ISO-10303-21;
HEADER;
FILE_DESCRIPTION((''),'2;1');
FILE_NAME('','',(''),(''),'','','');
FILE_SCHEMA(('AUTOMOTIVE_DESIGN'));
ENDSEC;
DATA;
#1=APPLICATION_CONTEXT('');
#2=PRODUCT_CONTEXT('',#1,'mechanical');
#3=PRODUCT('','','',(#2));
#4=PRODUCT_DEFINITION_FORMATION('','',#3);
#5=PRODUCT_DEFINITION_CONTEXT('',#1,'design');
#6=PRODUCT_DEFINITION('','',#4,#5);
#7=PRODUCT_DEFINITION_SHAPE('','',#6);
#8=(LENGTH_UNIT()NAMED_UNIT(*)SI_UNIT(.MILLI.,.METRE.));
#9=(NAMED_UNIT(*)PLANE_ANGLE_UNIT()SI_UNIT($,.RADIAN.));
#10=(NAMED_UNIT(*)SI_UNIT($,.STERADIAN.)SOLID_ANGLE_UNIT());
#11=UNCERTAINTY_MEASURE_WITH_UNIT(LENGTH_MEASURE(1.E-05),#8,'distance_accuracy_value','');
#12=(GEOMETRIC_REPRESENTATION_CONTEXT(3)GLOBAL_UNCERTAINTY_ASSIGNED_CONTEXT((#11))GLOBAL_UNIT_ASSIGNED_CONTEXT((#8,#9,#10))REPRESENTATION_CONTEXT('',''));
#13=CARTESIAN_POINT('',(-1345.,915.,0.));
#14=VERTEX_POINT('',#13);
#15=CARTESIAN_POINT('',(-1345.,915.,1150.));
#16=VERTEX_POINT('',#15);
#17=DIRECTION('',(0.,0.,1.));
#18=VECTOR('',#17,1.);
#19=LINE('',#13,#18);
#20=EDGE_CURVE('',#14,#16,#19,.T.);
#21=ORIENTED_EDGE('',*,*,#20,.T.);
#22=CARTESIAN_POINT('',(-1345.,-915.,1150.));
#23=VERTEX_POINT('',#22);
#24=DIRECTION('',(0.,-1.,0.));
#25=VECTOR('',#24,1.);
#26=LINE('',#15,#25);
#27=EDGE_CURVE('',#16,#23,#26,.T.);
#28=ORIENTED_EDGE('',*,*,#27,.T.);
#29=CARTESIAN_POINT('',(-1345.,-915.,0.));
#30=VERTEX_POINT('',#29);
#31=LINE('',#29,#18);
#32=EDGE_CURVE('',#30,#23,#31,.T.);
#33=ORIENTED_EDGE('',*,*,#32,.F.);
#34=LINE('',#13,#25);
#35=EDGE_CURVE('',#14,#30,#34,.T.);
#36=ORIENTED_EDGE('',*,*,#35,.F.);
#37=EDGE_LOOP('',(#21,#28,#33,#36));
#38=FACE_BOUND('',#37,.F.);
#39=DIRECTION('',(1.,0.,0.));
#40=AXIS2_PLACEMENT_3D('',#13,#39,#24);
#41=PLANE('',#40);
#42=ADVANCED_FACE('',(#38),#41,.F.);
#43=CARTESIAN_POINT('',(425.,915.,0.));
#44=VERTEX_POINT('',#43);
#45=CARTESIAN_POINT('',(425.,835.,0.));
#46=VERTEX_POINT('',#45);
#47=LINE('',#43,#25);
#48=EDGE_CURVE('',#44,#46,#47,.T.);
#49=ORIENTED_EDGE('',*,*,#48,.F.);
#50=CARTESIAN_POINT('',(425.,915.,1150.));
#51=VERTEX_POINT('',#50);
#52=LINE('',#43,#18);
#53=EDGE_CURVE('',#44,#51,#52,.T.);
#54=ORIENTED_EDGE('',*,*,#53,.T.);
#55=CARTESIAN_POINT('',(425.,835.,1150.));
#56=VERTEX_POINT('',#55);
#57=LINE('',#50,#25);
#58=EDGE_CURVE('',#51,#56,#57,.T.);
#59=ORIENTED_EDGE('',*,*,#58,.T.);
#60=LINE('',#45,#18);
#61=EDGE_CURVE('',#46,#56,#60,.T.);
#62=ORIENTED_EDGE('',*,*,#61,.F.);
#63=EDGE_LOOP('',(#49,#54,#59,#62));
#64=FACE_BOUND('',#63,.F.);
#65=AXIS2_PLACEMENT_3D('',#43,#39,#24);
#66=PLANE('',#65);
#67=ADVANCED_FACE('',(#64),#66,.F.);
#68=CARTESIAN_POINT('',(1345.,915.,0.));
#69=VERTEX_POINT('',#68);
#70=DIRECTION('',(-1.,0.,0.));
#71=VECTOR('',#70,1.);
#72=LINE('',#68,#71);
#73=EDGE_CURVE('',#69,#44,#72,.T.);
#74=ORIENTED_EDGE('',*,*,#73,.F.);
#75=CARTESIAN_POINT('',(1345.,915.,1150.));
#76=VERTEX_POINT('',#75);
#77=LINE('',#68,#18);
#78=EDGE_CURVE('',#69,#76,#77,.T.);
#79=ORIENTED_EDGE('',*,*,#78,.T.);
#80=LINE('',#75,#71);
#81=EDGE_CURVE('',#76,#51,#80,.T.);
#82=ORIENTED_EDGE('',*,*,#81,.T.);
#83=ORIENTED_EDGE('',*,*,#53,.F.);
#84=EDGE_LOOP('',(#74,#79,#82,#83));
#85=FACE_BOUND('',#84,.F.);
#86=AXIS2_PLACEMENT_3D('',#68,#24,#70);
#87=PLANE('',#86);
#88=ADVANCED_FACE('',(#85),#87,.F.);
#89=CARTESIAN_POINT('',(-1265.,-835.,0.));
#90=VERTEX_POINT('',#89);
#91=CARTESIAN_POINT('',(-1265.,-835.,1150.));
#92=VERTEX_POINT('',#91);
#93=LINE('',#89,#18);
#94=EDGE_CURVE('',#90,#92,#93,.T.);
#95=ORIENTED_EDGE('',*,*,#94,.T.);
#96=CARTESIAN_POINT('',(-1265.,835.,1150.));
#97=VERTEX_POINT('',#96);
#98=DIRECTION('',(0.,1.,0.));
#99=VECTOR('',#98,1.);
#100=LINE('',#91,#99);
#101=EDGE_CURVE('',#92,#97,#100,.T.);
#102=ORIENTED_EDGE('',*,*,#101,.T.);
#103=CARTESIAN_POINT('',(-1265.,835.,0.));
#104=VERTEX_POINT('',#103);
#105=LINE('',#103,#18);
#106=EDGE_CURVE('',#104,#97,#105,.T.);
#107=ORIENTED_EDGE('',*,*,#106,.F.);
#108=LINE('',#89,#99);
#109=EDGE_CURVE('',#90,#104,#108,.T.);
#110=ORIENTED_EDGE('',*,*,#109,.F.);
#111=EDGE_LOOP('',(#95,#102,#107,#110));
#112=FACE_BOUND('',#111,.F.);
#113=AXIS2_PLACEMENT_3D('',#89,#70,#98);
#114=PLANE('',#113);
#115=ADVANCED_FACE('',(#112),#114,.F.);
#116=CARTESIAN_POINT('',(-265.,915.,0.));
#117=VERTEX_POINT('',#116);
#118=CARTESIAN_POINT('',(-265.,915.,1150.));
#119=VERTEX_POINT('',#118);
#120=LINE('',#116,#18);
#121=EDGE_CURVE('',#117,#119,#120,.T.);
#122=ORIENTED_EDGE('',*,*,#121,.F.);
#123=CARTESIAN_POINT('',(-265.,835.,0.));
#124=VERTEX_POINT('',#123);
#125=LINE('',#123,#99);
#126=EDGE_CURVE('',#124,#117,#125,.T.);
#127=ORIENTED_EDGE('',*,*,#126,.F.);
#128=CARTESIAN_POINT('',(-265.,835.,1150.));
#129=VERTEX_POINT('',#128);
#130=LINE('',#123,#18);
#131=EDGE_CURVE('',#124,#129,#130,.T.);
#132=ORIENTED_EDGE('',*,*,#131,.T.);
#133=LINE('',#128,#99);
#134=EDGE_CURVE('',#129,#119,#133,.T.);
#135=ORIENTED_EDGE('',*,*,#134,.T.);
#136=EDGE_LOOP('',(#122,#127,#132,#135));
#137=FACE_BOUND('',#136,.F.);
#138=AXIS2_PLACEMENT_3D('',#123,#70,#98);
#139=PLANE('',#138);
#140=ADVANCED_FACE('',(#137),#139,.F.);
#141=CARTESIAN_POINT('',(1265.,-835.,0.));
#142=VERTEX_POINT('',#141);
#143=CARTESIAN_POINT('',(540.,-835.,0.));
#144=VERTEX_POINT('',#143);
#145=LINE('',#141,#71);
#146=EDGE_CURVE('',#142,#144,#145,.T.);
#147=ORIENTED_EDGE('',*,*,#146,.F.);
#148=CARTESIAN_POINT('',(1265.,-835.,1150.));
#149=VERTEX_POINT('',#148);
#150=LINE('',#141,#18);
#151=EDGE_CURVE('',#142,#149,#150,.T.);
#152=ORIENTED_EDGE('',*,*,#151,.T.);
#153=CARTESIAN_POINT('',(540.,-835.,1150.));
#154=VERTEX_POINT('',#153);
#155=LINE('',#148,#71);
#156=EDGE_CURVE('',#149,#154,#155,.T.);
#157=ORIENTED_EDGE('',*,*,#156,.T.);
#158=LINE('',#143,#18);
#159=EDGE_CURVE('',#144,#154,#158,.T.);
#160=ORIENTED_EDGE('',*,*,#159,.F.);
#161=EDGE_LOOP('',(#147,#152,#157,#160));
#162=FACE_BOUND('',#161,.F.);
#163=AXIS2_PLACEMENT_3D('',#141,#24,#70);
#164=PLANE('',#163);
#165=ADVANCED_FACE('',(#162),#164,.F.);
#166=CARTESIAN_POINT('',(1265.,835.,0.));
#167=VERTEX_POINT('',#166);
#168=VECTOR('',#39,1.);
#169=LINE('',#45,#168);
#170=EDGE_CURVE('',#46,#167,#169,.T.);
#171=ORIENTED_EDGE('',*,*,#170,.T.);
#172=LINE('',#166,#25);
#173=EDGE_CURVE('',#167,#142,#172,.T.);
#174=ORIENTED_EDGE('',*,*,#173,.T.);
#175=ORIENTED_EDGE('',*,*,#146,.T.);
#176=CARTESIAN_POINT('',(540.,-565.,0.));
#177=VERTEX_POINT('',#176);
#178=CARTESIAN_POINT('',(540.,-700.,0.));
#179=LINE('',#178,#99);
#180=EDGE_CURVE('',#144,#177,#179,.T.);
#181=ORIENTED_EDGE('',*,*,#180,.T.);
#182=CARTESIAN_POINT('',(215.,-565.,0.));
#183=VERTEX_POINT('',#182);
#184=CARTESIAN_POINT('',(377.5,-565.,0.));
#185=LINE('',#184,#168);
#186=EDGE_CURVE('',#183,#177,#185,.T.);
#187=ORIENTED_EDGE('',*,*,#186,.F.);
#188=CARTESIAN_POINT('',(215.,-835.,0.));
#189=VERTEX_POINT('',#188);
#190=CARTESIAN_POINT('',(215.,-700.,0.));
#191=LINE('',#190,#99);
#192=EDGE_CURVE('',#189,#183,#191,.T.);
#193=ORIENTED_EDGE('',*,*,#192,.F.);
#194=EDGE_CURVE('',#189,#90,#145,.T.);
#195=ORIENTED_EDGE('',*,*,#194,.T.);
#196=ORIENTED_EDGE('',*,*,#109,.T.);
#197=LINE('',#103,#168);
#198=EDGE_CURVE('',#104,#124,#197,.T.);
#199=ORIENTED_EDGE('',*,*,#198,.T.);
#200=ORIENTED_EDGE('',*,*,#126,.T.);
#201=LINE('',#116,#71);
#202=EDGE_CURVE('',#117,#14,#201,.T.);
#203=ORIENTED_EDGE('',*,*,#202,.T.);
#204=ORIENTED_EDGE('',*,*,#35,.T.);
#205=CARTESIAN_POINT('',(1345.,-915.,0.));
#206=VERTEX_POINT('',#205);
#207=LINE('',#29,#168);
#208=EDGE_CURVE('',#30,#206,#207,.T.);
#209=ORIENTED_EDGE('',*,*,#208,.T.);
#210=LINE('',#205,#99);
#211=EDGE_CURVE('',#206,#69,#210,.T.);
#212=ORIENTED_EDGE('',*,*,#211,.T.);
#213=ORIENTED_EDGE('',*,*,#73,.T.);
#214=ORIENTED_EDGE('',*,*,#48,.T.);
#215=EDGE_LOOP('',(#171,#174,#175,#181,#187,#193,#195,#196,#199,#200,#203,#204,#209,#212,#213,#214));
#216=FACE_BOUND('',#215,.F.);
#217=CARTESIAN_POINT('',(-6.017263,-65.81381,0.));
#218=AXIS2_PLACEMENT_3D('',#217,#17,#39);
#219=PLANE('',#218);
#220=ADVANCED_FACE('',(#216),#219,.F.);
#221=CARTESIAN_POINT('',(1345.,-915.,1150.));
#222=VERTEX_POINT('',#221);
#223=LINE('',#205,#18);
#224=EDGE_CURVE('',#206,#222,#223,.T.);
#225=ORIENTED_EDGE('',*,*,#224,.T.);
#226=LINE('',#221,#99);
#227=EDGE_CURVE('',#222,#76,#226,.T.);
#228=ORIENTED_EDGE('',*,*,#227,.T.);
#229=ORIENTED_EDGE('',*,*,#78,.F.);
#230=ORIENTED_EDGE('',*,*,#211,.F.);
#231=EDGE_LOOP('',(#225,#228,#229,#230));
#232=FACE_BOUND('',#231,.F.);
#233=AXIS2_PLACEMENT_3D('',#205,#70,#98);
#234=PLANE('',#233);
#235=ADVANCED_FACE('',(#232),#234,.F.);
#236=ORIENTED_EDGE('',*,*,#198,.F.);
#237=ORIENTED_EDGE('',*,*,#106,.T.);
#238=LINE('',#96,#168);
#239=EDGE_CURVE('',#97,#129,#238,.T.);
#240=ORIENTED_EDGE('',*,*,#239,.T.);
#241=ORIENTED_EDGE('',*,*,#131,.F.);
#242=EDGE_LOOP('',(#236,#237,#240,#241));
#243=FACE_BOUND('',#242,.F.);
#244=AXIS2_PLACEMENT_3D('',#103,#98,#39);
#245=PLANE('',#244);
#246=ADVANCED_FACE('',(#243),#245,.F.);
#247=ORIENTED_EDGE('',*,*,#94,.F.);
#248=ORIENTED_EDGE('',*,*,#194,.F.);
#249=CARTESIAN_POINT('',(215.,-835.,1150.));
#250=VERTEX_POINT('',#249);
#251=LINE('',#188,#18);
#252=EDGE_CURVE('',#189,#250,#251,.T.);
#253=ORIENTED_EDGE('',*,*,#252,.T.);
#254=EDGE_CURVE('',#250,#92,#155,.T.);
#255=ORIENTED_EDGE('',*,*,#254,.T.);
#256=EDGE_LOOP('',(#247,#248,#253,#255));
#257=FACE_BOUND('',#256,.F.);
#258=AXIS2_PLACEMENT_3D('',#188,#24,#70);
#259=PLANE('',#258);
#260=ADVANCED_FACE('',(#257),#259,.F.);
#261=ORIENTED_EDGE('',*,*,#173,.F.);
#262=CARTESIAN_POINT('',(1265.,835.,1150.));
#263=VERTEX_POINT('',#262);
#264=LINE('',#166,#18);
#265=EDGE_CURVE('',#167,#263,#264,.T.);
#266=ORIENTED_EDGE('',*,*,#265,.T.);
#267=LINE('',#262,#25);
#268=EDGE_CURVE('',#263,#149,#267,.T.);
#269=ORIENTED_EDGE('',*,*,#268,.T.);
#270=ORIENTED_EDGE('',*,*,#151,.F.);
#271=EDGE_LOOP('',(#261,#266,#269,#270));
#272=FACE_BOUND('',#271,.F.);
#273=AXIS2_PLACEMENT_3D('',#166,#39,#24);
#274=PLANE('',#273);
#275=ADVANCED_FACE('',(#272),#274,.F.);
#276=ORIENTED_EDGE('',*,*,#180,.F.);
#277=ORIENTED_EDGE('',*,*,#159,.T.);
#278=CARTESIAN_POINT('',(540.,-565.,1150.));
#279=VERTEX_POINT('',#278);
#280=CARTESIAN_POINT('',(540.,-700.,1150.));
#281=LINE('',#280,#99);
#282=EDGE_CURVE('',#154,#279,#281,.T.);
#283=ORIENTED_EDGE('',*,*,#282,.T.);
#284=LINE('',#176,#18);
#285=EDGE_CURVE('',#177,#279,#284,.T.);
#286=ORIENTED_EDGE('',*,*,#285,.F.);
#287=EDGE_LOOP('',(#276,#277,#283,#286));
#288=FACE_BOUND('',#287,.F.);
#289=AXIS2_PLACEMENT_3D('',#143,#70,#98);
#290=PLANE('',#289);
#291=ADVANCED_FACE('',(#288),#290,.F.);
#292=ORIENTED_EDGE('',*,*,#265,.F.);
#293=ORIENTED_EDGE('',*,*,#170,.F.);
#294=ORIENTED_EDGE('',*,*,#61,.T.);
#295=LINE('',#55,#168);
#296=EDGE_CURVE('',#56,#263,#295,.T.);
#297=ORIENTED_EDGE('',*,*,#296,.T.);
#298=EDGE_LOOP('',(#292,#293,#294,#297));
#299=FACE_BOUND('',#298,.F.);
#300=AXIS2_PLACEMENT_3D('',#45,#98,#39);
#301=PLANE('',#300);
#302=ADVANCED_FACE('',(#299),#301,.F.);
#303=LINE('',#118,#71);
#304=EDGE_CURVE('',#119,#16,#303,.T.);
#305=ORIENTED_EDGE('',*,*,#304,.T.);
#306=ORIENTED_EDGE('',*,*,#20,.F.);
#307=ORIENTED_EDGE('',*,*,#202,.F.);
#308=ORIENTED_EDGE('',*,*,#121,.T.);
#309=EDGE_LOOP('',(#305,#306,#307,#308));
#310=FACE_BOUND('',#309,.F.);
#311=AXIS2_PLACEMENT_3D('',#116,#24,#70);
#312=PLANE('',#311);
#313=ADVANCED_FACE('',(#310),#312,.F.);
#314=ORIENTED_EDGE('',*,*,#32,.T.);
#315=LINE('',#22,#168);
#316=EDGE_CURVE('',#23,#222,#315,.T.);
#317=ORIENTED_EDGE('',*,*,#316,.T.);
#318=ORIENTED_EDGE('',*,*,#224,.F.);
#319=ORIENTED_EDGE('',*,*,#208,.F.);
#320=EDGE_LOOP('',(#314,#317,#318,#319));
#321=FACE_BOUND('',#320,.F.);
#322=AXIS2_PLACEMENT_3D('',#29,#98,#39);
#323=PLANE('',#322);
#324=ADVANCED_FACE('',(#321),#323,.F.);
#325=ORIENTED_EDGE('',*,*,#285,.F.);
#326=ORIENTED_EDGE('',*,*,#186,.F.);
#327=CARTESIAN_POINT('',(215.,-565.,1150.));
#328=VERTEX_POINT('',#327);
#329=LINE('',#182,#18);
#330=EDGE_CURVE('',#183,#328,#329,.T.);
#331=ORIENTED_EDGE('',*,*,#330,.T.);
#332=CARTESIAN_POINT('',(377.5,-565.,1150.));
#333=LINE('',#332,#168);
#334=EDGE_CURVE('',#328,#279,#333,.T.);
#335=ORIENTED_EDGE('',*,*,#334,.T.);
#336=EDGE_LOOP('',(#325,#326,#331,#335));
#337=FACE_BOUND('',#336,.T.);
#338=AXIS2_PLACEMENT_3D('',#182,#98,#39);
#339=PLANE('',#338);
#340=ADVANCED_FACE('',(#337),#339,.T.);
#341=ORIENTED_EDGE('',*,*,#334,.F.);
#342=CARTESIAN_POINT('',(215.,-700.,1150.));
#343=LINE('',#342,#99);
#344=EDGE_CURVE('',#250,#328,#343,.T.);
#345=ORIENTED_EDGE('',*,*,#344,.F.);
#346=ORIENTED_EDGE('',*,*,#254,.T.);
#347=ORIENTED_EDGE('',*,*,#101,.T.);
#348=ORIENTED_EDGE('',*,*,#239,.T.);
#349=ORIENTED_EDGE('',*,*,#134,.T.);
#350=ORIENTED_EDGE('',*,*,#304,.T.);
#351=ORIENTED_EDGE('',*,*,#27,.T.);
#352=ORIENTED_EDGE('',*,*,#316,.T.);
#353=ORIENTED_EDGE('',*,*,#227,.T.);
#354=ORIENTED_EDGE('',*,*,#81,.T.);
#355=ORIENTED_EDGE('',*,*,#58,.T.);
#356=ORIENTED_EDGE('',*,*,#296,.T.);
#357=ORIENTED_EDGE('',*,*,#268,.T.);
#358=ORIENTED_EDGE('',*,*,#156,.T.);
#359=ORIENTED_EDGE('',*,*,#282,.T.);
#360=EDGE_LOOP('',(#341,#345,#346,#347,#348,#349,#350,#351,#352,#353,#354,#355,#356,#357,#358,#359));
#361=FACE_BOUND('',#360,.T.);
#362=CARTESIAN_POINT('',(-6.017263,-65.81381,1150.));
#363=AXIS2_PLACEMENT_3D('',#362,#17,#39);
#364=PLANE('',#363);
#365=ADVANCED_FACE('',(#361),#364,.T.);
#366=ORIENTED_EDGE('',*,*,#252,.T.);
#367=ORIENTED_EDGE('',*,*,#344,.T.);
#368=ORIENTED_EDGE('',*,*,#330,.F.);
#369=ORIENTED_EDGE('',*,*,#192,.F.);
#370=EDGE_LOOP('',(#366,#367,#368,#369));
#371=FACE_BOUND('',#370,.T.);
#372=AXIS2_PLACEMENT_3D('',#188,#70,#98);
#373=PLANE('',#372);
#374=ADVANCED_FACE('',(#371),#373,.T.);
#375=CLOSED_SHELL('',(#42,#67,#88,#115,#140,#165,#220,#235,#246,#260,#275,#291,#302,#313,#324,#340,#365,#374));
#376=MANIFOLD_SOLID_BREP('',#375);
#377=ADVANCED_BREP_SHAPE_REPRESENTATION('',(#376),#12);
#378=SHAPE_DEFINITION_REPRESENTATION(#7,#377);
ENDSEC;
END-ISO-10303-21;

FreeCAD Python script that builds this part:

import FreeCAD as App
import Part
import Sketcher
Q = App.Units.Quantity

doc = App.newDocument("Part")
body = doc.addObject("PartDesign::Body", "Body")

sketch1 = body.newObject("Sketcher::SketchObject", "Sketch")
sketch1.AttachmentSupport = (doc.getObject("XY_Plane"), [""])
sketch1.MapMode = "FlatFace"
sketch1.addGeometry([
    Part.LineSegment(App.Vector(-1265, 835, 0), App.Vector(-265, 835, 0)),
    Part.LineSegment(App.Vector(-265, 835, 0), App.Vector(-265, 915, 0)),
    Part.LineSegment(App.Vector(-265, 915, 0), App.Vector(-1345, 915, 0)),
    Part.LineSegment(App.Vector(-1345, 915, 0), App.Vector(-1345, -915, 0)),
    Part.LineSegment(App.Vector(-1345, -915, 0), App.Vector(1345, -915, 0)),
    Part.LineSegment(App.Vector(1345, -915, 0), App.Vector(1345, 915, 0)),
    Part.LineSegment(App.Vector(1345, 915, 0), App.Vector(425, 915, 0)),
    Part.LineSegment(App.Vector(425, 915, 0), App.Vector(425, 835, 0)),
    Part.LineSegment(App.Vector(425, 835, 0), App.Vector(1265, 835, 0)),
    Part.LineSegment(App.Vector(1265, 835, 0), App.Vector(1265, -835, 0)),
    Part.LineSegment(App.Vector(1265, -835, 0), App.Vector(540, -835, 0)),
    Part.LineSegment(App.Vector(540, -835, 0), App.Vector(540, -565, 0)),
    Part.LineSegment(App.Vector(540, -565, 0), App.Vector(215, -565, 0)),
    Part.LineSegment(App.Vector(215, -565, 0), App.Vector(215, -835, 0)),
    Part.LineSegment(App.Vector(215, -835, 0), App.Vector(-1265, -835, 0)),
    Part.LineSegment(App.Vector(-1265, -835, 0), App.Vector(-1265, 835, 0)),
], False)
sketch1.addConstraint([
    Sketcher.Constraint("Coincident", 0, 2, 1, 1),
    Sketcher.Constraint("Coincident", 1, 2, 2, 1),
    Sketcher.Constraint("Coincident", 2, 2, 3, 1),
    Sketcher.Constraint("Coincident", 3, 2, 4, 1),
    Sketcher.Constraint("Coincident", 4, 2, 5, 1),
    Sketcher.Constraint("Coincident", 5, 2, 6, 1),
    Sketcher.Constraint("Coincident", 6, 2, 7, 1),
    Sketcher.Constraint("Coincident", 7, 2, 8, 1),
    Sketcher.Constraint("Coincident", 8, 2, 9, 1),
    Sketcher.Constraint("Coincident", 9, 2, 10, 1),
    Sketcher.Constraint("Coincident", 10, 2, 11, 1),
    Sketcher.Constraint("Coincident", 11, 2, 12, 1),
    Sketcher.Constraint("Coincident", 12, 2, 13, 1),
    Sketcher.Constraint("Coincident", 13, 2, 14, 1),
    Sketcher.Constraint("Coincident", 14, 2, 15, 1),
    Sketcher.Constraint("Coincident", 15, 2, 0, 1),
    Sketcher.Constraint("Horizontal", 0),
    Sketcher.Constraint("Vertical", 1),
    Sketcher.Constraint("Horizontal", 2),
    Sketcher.Constraint("Vertical", 3),
    Sketcher.Constraint("Horizontal", 4),
    Sketcher.Constraint("Vertical", 5),
    Sketcher.Constraint("Horizontal", 6),
    Sketcher.Constraint("Vertical", 7),
    Sketcher.Constraint("Horizontal", 8),
    Sketcher.Constraint("Vertical", 9),
    Sketcher.Constraint("Horizontal", 10),
    Sketcher.Constraint("Vertical", 11),
    Sketcher.Constraint("Horizontal", 12),
    Sketcher.Constraint("Vertical", 13),
    Sketcher.Constraint("Horizontal", 14),
    Sketcher.Constraint("Vertical", 15),
    Sketcher.Constraint("Symmetric", 2, 2, 4, 2, -1, 1),
    Sketcher.Constraint("Symmetric", 8, 2, 14, 2, -1, 1),
    Sketcher.Constraint("Horizontal", 2, 2, 5, 2),
    Sketcher.Constraint("Horizontal", 0, 2, 7, 2),
    Sketcher.Constraint("Horizontal", 10, 2, 13, 2),
    Sketcher.Constraint("DistanceX", 0, 1, 0, 2, Q("1000 mm")),
    Sketcher.Constraint("DistanceX", 2, 2, 2, 1, Q("1080 mm")),
    Sketcher.Constraint("DistanceX", 4, 1, 4, 2, Q("2690 mm")),
    Sketcher.Constraint("DistanceX", 6, 2, 6, 1, Q("920 mm")),
    Sketcher.Constraint("DistanceX", 10, 2, 10, 1, Q("725 mm")),
    Sketcher.Constraint("DistanceX", 12, 2, 12, 1, Q("325 mm")),
    Sketcher.Constraint("DistanceY", 1, 1, 1, 2, Q("80 mm")),
    Sketcher.Constraint("DistanceY", 3, 2, 3, 1, Q("1830 mm")),
    Sketcher.Constraint("DistanceY", 11, 1, 11, 2, Q("270 mm")),
])
pad1 = body.newObject("PartDesign::Pad", "Pad")
pad1.Profile = sketch1
pad1.Length = 1150

doc.recompute()
